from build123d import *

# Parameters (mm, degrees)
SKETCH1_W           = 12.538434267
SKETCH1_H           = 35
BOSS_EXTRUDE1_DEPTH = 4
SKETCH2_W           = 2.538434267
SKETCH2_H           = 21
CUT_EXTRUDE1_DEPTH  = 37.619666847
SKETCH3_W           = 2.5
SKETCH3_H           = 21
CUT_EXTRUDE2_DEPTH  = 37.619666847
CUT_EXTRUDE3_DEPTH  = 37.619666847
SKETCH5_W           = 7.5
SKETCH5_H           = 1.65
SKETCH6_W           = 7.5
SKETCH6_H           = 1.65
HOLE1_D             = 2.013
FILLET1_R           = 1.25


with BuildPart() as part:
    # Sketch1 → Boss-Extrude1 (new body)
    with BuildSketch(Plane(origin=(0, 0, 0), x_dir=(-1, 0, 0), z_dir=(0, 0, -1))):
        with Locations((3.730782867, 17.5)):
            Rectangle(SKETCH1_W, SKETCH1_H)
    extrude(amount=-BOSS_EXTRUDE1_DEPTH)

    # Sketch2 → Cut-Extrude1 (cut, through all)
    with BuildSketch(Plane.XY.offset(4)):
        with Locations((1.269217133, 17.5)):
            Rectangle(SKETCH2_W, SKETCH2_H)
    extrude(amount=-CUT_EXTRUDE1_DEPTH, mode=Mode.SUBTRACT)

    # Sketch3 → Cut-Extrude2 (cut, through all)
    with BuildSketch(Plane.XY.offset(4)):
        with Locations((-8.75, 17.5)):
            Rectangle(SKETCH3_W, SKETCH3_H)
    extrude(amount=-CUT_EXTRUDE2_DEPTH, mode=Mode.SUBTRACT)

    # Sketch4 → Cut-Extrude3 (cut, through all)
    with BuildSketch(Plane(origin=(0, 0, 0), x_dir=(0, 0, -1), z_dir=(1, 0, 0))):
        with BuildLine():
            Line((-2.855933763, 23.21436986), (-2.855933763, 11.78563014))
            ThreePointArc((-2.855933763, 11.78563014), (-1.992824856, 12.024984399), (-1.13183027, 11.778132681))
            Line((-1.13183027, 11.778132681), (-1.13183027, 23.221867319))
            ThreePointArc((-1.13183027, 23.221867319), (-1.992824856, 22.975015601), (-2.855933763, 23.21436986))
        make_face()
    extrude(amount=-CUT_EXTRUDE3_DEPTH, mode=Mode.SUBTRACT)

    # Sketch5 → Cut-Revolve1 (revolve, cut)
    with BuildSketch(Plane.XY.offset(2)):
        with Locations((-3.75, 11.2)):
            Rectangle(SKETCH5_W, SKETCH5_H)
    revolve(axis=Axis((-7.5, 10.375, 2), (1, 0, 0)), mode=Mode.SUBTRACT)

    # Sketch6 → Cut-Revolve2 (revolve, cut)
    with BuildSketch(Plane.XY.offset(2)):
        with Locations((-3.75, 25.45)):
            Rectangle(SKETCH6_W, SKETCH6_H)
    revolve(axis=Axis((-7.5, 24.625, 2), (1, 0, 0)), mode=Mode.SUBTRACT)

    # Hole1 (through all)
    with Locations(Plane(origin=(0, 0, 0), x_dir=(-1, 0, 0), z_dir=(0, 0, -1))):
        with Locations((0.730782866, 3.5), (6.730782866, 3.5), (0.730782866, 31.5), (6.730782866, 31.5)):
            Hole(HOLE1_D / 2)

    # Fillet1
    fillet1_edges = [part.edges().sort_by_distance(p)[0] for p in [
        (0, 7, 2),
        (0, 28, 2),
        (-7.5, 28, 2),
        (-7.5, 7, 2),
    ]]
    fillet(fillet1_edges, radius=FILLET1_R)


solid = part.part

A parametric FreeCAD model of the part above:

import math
import FreeCAD as App
import Part
import Sketcher

V = App.Vector


def edges_at(feature, points):
    """Names of the edges that pass closest to the given points."""
    edges = feature.Shape.Edges
    near = lambda p: min(range(len(edges)), key=lambda i: edges[i].distToShape(Part.Vertex(*p))[0])
    return sorted({f"Edge{near(p) + 1}" for p in points})

doc = App.newDocument("Part")
params = doc.addObject("Spreadsheet::Sheet", "Params")
for row, (alias, value) in enumerate([
    ("sketch1_height", "35 mm"),
    ("pad1_length", "4 mm"),
    ("sketch2_height", "21 mm"),
    ("sketch3_height", "21 mm"),
    ("sketch3_width", "2.5 mm"),
    ("sketch4_radius", "1.65 mm"),
    ("sketch5_width", "7.5 mm"),
    ("sketch5_height", "1.65 mm"),
    ("groove_angle", "360 deg"),
    ("sketch6_width", "7.5 mm"),
    ("sketch6_height", "1.65 mm"),
    ("groove2_angle", "360 deg"),
    ("hole_diameter", "2.013 mm"),
    ("fillet_radius", "1.25 mm"),
], start=1):
    params.set(f"A{row}", alias)
    params.set(f"B{row}", "=" + value)
    params.setAlias(f"B{row}", alias)

body = doc.addObject("PartDesign::Body", "Body")

sketch1 = doc.addObject("Sketcher::SketchObject", "Sketch")
body.addObject(sketch1)
sketch1.AttachmentSupport = (doc.XY_Plane, [""])
sketch1.MapMode = "FlatFace"
sketch1.addGeometry(Part.LineSegment(V(3, 35, 0), V(3, 0, 0)), False)
sketch1.addGeometry(Part.LineSegment(V(3, 0, 0), V(-10, 0, 0)), False)
sketch1.addGeometry(Part.LineSegment(V(-10, 0, 0), V(-10, 35, 0)), False)
sketch1.addGeometry(Part.LineSegment(V(-10, 35, 0), V(3, 35, 0)), False)
sketch1.addConstraint(Sketcher.Constraint("Coincident", 0, 2, 1, 1))
sketch1.addConstraint(Sketcher.Constraint("Coincident", 1, 2, 2, 1))
sketch1.addConstraint(Sketcher.Constraint("Coincident", 2, 2, 3, 1))
sketch1.addConstraint(Sketcher.Constraint("Coincident", 3, 2, 0, 1))
sketch1.addConstraint(Sketcher.Constraint("Vertical", 0))
sketch1.addConstraint(Sketcher.Constraint("Horizontal", 1))
sketch1.addConstraint(Sketcher.Constraint("Vertical", 2))
sketch1.addConstraint(Sketcher.Constraint("Horizontal", 3))
sketch1.addConstraint(Sketcher.Constraint("PointOnObject", 0, 2, -1))
sketch1.addConstraint(Sketcher.Constraint("DistanceY", 0, 2, 0, 1, 35.0))
sketch1.addConstraint(Sketcher.Constraint("DistanceX", 1, 2, -1, 1, 10.0))
sketch1.addConstraint(Sketcher.Constraint("DistanceX", 1, 2, 1, 1, 12.538434))
sketch1.setExpression("Constraints[9]", "Params.sketch1_height")
pad1 = doc.addObject("PartDesign::Pad", "Pad")
body.addObject(pad1)
pad1.Profile = sketch1
pad1.setExpression("Length", "Params.pad1_length")

sketch2 = doc.addObject("Sketcher::SketchObject", "Sketch001")
body.addObject(sketch2)
sketch2.AttachmentSupport = (doc.XY_Plane, [""])
sketch2.MapMode = "FlatFace"
sketch2.AttachmentOffset = App.Placement(V(0, 0, 4), App.Rotation())
sketch2.addGeometry(Part.LineSegment(V(0, 28, 0), V(0, 7, 0)), False)
sketch2.addGeometry(Part.LineSegment(V(0, 7, 0), V(2.5, 7, 0)), False)
sketch2.addGeometry(Part.LineSegment(V(2.5, 7, 0), V(2.5, 28, 0)), False)
sketch2.addGeometry(Part.LineSegment(V(2.5, 28, 0), V(0, 28, 0)), False)
sketch2.addConstraint(Sketcher.Constraint("Coincident", 0, 2, 1, 1))
sketch2.addConstraint(Sketcher.Constraint("Coincident", 1, 2, 2, 1))
sketch2.addConstraint(Sketcher.Constraint("Coincident", 2, 2, 3, 1))
sketch2.addConstraint(Sketcher.Constraint("Coincident", 3, 2, 0, 1))
sketch2.addConstraint(Sketcher.Constraint("Vertical", 0))
sketch2.addConstraint(Sketcher.Constraint("Horizontal", 1))
sketch2.addConstraint(Sketcher.Constraint("Vertical", 2))
sketch2.addConstraint(Sketcher.Constraint("Horizontal", 3))
sketch2.addConstraint(Sketcher.Constraint("PointOnObject", 0, 2, -2))
sketch2.addConstraint(Sketcher.Constraint("DistanceY", 0, 2, 0, 1, 21.0))
sketch2.addConstraint(Sketcher.Constraint("DistanceY", -1, 1, 0, 2, 7.0))
sketch2.addConstraint(Sketcher.Constraint("DistanceX", 1, 1, 1, 2, 2.538434))
sketch2.setExpression("Constraints[9]", "Params.sketch2_height")
pocket1 = doc.addObject("PartDesign::Pocket", "Pocket")
body.addObject(pocket1)
pocket1.Profile = sketch2
pocket1.Type = "ThroughAll"

sketch3 = doc.addObject("Sketcher::SketchObject", "Sketch002")
body.addObject(sketch3)
sketch3.AttachmentSupport = (doc.XY_Plane, [""])
sketch3.MapMode = "FlatFace"
sketch3.AttachmentOffset = App.Placement(V(0, 0, 4), App.Rotation())
sketch3.addGeometry(Part.LineSegment(V(-10, 28, 0), V(-10, 7, 0)), False)
sketch3.addGeometry(Part.LineSegment(V(-10, 7, 0), V(-7.5, 7, 0)), False)
sketch3.addGeometry(Part.LineSegment(V(-7.5, 7, 0), V(-7.5, 28, 0)), False)
sketch3.addGeometry(Part.LineSegment(V(-7.5, 28, 0), V(-10, 28, 0)), False)
sketch3.addConstraint(Sketcher.Constraint("Coincident", 0, 2, 1, 1))
sketch3.addConstraint(Sketcher.Constraint("Coincident", 1, 2, 2, 1))
sketch3.addConstraint(Sketcher.Constraint("Coincident", 2, 2, 3, 1))
sketch3.addConstraint(Sketcher.Constraint("Coincident", 3, 2, 0, 1))
sketch3.addConstraint(Sketcher.Constraint("Vertical", 0))
sketch3.addConstraint(Sketcher.Constraint("Horizontal", 1))
sketch3.addConstraint(Sketcher.Constraint("Vertical", 2))
sketch3.addConstraint(Sketcher.Constraint("Horizontal", 3))
sketch3.addConstraint(Sketcher.Constraint("DistanceY", 0, 2, 0, 1, 21.0))
sketch3.addConstraint(Sketcher.Constraint("DistanceX", 1, 1, 1, 2, 2.5))
sketch3.addConstraint(Sketcher.Constraint("DistanceX", 0, 2, -1, 1, 10.0))
sketch3.addConstraint(Sketcher.Constraint("DistanceY", -1, 1, 0, 2, 7.0))
sketch3.setExpression("Constraints[8]", "Params.sketch3_height")
sketch3.setExpression("Constraints[9]", "Params.sketch3_width")
pocket2 = doc.addObject("PartDesign::Pocket", "Pocket001")
body.addObject(pocket2)
pocket2.Profile = sketch3
pocket2.Type = "ThroughAll"

sketch4 = doc.addObject("Sketcher::SketchObject", "Sketch003")
body.addObject(sketch4)
sketch4.AttachmentSupport = (doc.YZ_Plane, [""])
sketch4.MapMode = "FlatFace"
sketch4.addGeometry(Part.LineSegment(V(23.2, 2.9, 0), V(11.8, 2.9, 0)), False)
sketch4.addGeometry(Part.ArcOfCircle(Part.Circle(V(10.4, 2, 0), V(0, 0, 1), 1.6), math.radians(-32), math.radians(31)), False)
sketch4.addGeometry(Part.LineSegment(V(11.8, 1.1, 0), V(23.2, 1.1, 0)), False)
sketch4.addGeometry(Part.ArcOfCircle(Part.Circle(V(24.6, 2, 0), V(0, 0, 1), 1.6), math.radians(149), math.radians(212)), False)
sketch4.addConstraint(Sketcher.Constraint("Coincident", 0, 2, 1, 2))
sketch4.addConstraint(Sketcher.Constraint("Coincident", 1, 1, 2, 1))
sketch4.addConstraint(Sketcher.Constraint("Coincident", 2, 2, 3, 2))
sketch4.addConstraint(Sketcher.Constraint("Coincident", 3, 1, 0, 1))
sketch4.addConstraint(Sketcher.Constraint("Horizontal", 0))
sketch4.addConstraint(Sketcher.Constraint("Horizontal", 2))
sketch4.addConstraint(Sketcher.Constraint("Equal", 1, 3))
sketch4.addConstraint(Sketcher.Constraint("Horizontal", 1, 3, 3, 3))
sketch4.addConstraint(Sketcher.Constraint("Radius", 1, 1.65))
sketch4.addConstraint(Sketcher.Constraint("DistanceY", -1, 1, 1, 3, 2.0))
sketch4.addConstraint(Sketcher.Constraint("DistanceX", 1, 3, 3, 3, 14.25))
sketch4.addConstraint(Sketcher.Constraint("DistanceX", -1, 1, 1, 3, 10.375))
sketch4.addConstraint(Sketcher.Constraint("DistanceX", 0, 2, 0, 1, 11.42874))
sketch4.addConstraint(Sketcher.Constraint("DistanceX", 2, 1, 2, 2, 11.443735))
sketch4.setExpression("Constraints[8]", "Params.sketch4_radius")
pocket3 = doc.addObject("PartDesign::Pocket", "Pocket002")
body.addObject(pocket3)
pocket3.Profile = sketch4
pocket3.Type = "ThroughAll"

sketch5 = doc.addObject("Sketcher::SketchObject", "Sketch004")
body.addObject(sketch5)
sketch5.AttachmentSupport = (doc.XY_Plane, [""])
sketch5.MapMode = "FlatFace"
sketch5.AttachmentOffset = App.Placement(V(0, 0, 2), App.Rotation())
sketch5.addGeometry(Part.LineSegment(V(-7.5, 12, 0), V(-7.5, 10.4, 0)), False)
sketch5.addGeometry(Part.LineSegment(V(-7.5, 10.4, 0), V(0, 10.4, 0)), False)
sketch5.addGeometry(Part.LineSegment(V(0, 10.4, 0), V(0, 12, 0)), False)
sketch5.addGeometry(Part.LineSegment(V(0, 12, 0), V(-7.5, 12, 0)), False)
sketch5.addGeometry(Part.LineSegment(V(-7.5, 10.4, 0), V(0, 10.4, 0)), True)
sketch5.addConstraint(Sketcher.Constraint("Coincident", 0, 2, 1, 1))
sketch5.addConstraint(Sketcher.Constraint("Coincident", 1, 2, 2, 1))
sketch5.addConstraint(Sketcher.Constraint("Coincident", 2, 2, 3, 1))
sketch5.addConstraint(Sketcher.Constraint("Coincident", 3, 2, 0, 1))
sketch5.addConstraint(Sketcher.Constraint("Vertical", 0))
sketch5.addConstraint(Sketcher.Constraint("Horizontal", 1))
sketch5.addConstraint(Sketcher.Constraint("Vertical", 2))
sketch5.addConstraint(Sketcher.Constraint("Horizontal", 3))
sketch5.addConstraint(Sketcher.Constraint("Horizontal", 4))
sketch5.addConstraint(Sketcher.Constraint("Coincident", 4, 1, 0, 2))
sketch5.addConstraint(Sketcher.Constraint("PointOnObject", 1, 2, -2))
sketch5.addConstraint(Sketcher.Constraint("PointOnObject", 4, 2, -2))
sketch5.addConstraint(Sketcher.Constraint("DistanceX", 1, 1, 1, 2, 7.5))
sketch5.addConstraint(Sketcher.Constraint("DistanceY", 0, 2, 0, 1, 1.65))
sketch5.addConstraint(Sketcher.Constraint("DistanceY", -1, 1, 0, 2, 10.375))
sketch5.setExpression("Constraints[12]", "Params.sketch5_width")
sketch5.setExpression("Constraints[13]", "Params.sketch5_height")
groove = doc.addObject("PartDesign::Groove", "Groove")
body.addObject(groove)
groove.Profile = sketch5
groove.ReferenceAxis = (sketch5, ["Axis0"])
groove.setExpression("Angle", "Params.groove_angle")

sketch6 = doc.addObject("Sketcher::SketchObject", "Sketch005")
body.addObject(sketch6)
sketch6.AttachmentSupport = (doc.XY_Plane, [""])
sketch6.MapMode = "FlatFace"
sketch6.AttachmentOffset = App.Placement(V(0, 0, 2), App.Rotation())
sketch6.addGeometry(Part.LineSegment(V(-7.5, 26.3, 0), V(-7.5, 24.6, 0)), False)
sketch6.addGeometry(Part.LineSegment(V(-7.5, 24.6, 0), V(0, 24.6, 0)), False)
sketch6.addGeometry(Part.LineSegment(V(0, 24.6, 0), V(0, 26.3, 0)), False)
sketch6.addGeometry(Part.LineSegment(V(0, 26.3, 0), V(-7.5, 26.3, 0)), False)
sketch6.addGeometry(Part.LineSegment(V(-7.5, 24.6, 0), V(0, 24.6, 0)), True)
sketch6.addConstraint(Sketcher.Constraint("Coincident", 0, 2, 1, 1))
sketch6.addConstraint(Sketcher.Constraint("Coincident", 1, 2, 2, 1))
sketch6.addConstraint(Sketcher.Constraint("Coincident", 2, 2, 3, 1))
sketch6.addConstraint(Sketcher.Constraint("Coincident", 3, 2, 0, 1))
sketch6.addConstraint(Sketcher.Constraint("Vertical", 0))
sketch6.addConstraint(Sketcher.Constraint("Horizontal", 1))
sketch6.addConstraint(Sketcher.Constraint("Vertical", 2))
sketch6.addConstraint(Sketcher.Constraint("Horizontal", 3))
sketch6.addConstraint(Sketcher.Constraint("Horizontal", 4))
sketch6.addConstraint(Sketcher.Constraint("Coincident", 4, 1, 0, 2))
sketch6.addConstraint(Sketcher.Constraint("PointOnObject", 1, 2, -2))
sketch6.addConstraint(Sketcher.Constraint("PointOnObject", 4, 2, -2))
sketch6.addConstraint(Sketcher.Constraint("DistanceX", 1, 1, 1, 2, 7.5))
sketch6.addConstraint(Sketcher.Constraint("DistanceY", 0, 2, 0, 1, 1.65))
sketch6.addConstraint(Sketcher.Constraint("DistanceY", -1, 1, 0, 2, 24.625))
sketch6.setExpression("Constraints[12]", "Params.sketch6_width")
sketch6.setExpression("Constraints[13]", "Params.sketch6_height")
groove2 = doc.addObject("PartDesign::Groove", "Groove001")
body.addObject(groove2)
groove2.Profile = sketch6
groove2.ReferenceAxis = (sketch6, ["Axis0"])
groove2.setExpression("Angle", "Params.groove2_angle")

sketch7 = doc.addObject("Sketcher::SketchObject", "Sketch006")
body.addObject(sketch7)
sketch7.AttachmentSupport = (doc.XY_Plane, [""])
sketch7.MapMode = "FlatFace"
sketch7.addGeometry(Part.Circle(V(-0.7, 3.5, 0), V(0, 0, 1), 1), False)
sketch7.addGeometry(Part.Circle(V(-6.7, 3.5, 0), V(0, 0, 1), 1), False)
sketch7.addGeometry(Part.Circle(V(-0.7, 31.5, 0), V(0, 0, 1), 1), False)
sketch7.addGeometry(Part.Circle(V(-6.7, 31.5, 0), V(0, 0, 1), 1), False)
sketch7.addConstraint(Sketcher.Constraint("Equal", 0, 1))
sketch7.addConstraint(Sketcher.Constraint("Equal", 1, 2))
sketch7.addConstraint(Sketcher.Constraint("Equal", 2, 3))
sketch7.addConstraint(Sketcher.Constraint("Horizontal", 0, 3, 1, 3))
sketch7.addConstraint(Sketcher.Constraint("Horizontal", 2, 3, 3, 3))
sketch7.addConstraint(Sketcher.Constraint("Vertical", 0, 3, 2, 3))
sketch7.addConstraint(Sketcher.Constraint("Vertical", 1, 3, 3, 3))
sketch7.addConstraint(Sketcher.Constraint("Diameter", 0, 2.013))
sketch7.addConstraint(Sketcher.Constraint("DistanceX", 1, 3, 0, 3, 6.0))
sketch7.addConstraint(Sketcher.Constraint("DistanceY", 0, 3, 2, 3, 28.0))
sketch7.addConstraint(Sketcher.Constraint("DistanceY", -1, 1, 0, 3, 3.5))
sketch7.addConstraint(Sketcher.Constraint("DistanceX", 0, 3, -1, 1, 0.730783))
doc.recompute()
hole = doc.addObject("PartDesign::Hole", "Hole")
body.addObject(hole)
hole.Profile = sketch7
hole.ThreadType = "None"
hole.setExpression("Diameter", "Params.hole_diameter")
hole.DepthType = "ThroughAll"
hole.Reversed = True
doc.recompute()

fillet = doc.addObject("PartDesign::Fillet", "Fillet")
body.addObject(fillet)
fillet.Base = (hole, edges_at(hole, [
    (0, 7, 2),
    (0, 28, 2),
    (-7.5, 28, 2),
    (-7.5, 7, 2),
]))
fillet.setExpression("Radius", "Params.fillet_radius")

doc.recompute()
